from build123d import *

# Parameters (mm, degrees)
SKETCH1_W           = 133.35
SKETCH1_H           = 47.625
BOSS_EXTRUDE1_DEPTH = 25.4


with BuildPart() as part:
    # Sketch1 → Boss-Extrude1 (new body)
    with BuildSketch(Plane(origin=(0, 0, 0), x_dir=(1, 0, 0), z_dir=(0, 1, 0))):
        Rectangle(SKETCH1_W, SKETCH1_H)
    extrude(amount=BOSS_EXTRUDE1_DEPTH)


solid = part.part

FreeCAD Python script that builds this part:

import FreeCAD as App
import Part
import Sketcher
from FreeCAD import Vector
Q = App.Units.Quantity

doc = App.newDocument("Part")
body = doc.addObject("PartDesign::Body", "Body")

sketch1 = body.newObject("Sketcher::SketchObject", "Sketch")
sketch1.AttachmentSupport = (doc.getObject("XZ_Plane"), [""])
sketch1.MapMode = "FlatFace"
sketch1.addGeometry([
    Part.LineSegment(Vector(-66.675, -23.8125, 0), Vector(-66.675, 23.8125, 0)),
    Part.LineSegment(Vector(-66.675, 23.8125, 0), Vector(66.675, 23.8125, 0)),
    Part.LineSegment(Vector(66.675, 23.8125, 0), Vector(66.675, -23.8125, 0)),
    Part.LineSegment(Vector(66.675, -23.8125, 0), Vector(-66.675, -23.8125, 0)),
], False)
sketch1.addConstraint([
    Sketcher.Constraint("Coincident", 0, 2, 1, 1),
    Sketcher.Constraint("Coincident", 1, 2, 2, 1),
    Sketcher.Constraint("Coincident", 2, 2, 3, 1),
    Sketcher.Constraint("Coincident", 3, 2, 0, 1),
    Sketcher.Constraint("Vertical", 0),
    Sketcher.Constraint("Horizontal", 1),
    Sketcher.Constraint("Vertical", 2),
    Sketcher.Constraint("Horizontal", 3),
    Sketcher.Constraint("Symmetric", 0, 2, 2, 2, -1, 1),
    Sketcher.Constraint("DistanceX", 1, 1, 1, 2, Q("5.25 in")),
    Sketcher.Constraint("DistanceY", 0, 1, 0, 2, Q("1.875 in")),
])
pad1 = body.newObject("PartDesign::Pad", "Pad")
pad1.Profile = sketch1
pad1.Length = Q("1 in")
pad1.Reversed = True

doc.recompute()
